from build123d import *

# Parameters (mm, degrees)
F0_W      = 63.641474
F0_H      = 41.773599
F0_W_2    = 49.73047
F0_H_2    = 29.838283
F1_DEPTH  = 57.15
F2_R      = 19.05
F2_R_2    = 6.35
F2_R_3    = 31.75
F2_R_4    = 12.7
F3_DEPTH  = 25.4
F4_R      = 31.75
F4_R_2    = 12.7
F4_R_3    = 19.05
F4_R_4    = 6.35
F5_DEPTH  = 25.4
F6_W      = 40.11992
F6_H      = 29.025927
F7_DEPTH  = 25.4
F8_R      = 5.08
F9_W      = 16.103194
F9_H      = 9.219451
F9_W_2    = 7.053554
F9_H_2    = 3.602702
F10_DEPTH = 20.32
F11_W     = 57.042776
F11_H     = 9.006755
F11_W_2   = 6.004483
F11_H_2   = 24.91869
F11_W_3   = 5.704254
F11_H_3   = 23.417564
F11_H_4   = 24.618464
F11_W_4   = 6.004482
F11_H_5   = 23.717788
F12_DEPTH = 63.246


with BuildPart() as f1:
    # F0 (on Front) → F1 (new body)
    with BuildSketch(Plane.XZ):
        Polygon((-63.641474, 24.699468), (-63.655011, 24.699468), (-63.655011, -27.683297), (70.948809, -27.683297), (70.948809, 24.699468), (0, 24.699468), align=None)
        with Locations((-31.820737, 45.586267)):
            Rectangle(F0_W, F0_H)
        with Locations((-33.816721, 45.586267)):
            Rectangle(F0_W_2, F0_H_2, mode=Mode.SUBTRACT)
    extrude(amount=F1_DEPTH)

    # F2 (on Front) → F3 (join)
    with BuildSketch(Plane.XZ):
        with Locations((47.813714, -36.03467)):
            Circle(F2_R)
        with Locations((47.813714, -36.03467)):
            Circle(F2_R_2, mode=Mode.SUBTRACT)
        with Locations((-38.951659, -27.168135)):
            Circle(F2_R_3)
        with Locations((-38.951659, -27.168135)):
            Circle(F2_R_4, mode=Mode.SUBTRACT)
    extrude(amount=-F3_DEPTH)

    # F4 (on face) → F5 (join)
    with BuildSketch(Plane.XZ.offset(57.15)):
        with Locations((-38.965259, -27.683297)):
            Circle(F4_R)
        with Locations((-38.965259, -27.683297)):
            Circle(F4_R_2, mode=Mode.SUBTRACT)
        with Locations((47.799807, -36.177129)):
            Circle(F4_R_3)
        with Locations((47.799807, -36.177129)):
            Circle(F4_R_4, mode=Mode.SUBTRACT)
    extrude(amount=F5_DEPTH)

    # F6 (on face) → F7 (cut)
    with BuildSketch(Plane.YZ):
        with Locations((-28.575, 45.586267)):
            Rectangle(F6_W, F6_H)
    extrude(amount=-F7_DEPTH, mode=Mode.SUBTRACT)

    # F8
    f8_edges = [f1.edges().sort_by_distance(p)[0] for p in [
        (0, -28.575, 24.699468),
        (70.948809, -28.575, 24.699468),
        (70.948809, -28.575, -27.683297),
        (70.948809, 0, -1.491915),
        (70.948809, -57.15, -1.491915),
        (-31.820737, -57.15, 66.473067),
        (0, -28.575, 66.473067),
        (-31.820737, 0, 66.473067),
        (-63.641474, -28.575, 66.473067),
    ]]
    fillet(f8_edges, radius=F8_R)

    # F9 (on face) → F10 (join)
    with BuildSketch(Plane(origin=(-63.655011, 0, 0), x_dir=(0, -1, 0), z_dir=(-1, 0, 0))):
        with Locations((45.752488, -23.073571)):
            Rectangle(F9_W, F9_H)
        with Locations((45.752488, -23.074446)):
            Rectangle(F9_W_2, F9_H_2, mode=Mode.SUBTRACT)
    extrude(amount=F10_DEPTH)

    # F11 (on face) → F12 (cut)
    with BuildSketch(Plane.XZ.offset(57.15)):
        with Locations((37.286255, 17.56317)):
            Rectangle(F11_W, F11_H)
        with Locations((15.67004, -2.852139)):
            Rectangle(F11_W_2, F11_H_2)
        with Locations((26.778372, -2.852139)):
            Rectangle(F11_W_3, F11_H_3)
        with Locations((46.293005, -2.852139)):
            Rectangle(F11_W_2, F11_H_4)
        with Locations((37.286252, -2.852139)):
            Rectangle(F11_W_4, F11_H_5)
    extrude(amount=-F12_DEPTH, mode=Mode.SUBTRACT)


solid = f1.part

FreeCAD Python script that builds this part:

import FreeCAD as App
import Part
import Sketcher
Q = App.Units.Quantity


def edges_at(feature, points):
    """Names of the edges that pass closest to the given points."""
    edges = feature.Shape.Edges
    near = lambda p: min(range(len(edges)), key=lambda i: edges[i].distToShape(Part.Vertex(*p))[0])
    return sorted({f"Edge{near(p) + 1}" for p in points})


def add_polygon(sketch, points):
    """Adds a closed chain of lines whose ends are joined by coincident constraints."""
    first, n = sketch.GeometryCount, len(points)
    for a, b in zip(points, points[1:] + points[:1]):
        sketch.addGeometry(Part.LineSegment(App.Vector(*a, 0), App.Vector(*b, 0)), False)
    for i in range(n):
        sketch.addConstraint(Sketcher.Constraint("Coincident", first + i, 2, first + (i + 1) % n, 1))

doc = App.newDocument("Part")
body = doc.addObject("PartDesign::Body", "Body")

# Sketch on XZ plane
sketch1 = body.newObject("Sketcher::SketchObject", "Sketch")
sketch1.AttachmentSupport = (doc.getObject("XZ_Plane"), [""])
sketch1.MapMode = "FlatFace"
add_polygon(sketch1, [(-63.641, 24.699), (-63.655, 24.699), (-63.655, -27.683), (70.949, -27.683), (70.949, 24.699), (0, 24.699), (0, 66.473), (-63.641, 66.473)])  # lines 0-7
add_polygon(sketch1, [(-8.951, 30.667), (-58.682, 30.667), (-58.682, 60.505), (-8.951, 60.505)])  # lines 8-11
sketch1.addConstraint(Sketcher.Constraint("Horizontal", 0))
sketch1.addConstraint(Sketcher.Constraint("Vertical", 1))
sketch1.addConstraint(Sketcher.Constraint("Horizontal", 2))
sketch1.addConstraint(Sketcher.Constraint("Vertical", 3))
sketch1.addConstraint(Sketcher.Constraint("Horizontal", 4))
sketch1.addConstraint(Sketcher.Constraint("Vertical", 5))
sketch1.addConstraint(Sketcher.Constraint("Horizontal", 6))
sketch1.addConstraint(Sketcher.Constraint("Vertical", 7))
sketch1.addConstraint(Sketcher.Constraint("Horizontal", 8))
sketch1.addConstraint(Sketcher.Constraint("Vertical", 9))
sketch1.addConstraint(Sketcher.Constraint("Horizontal", 10))
sketch1.addConstraint(Sketcher.Constraint("Vertical", 11))
sketch1.addConstraint(Sketcher.Constraint("PointOnObject", 4, 2, -2))
sketch1.addConstraint(Sketcher.Constraint("Horizontal", 0, 2, 3, 2))
sketch1.addConstraint(Sketcher.Constraint("DistanceY", 5, 1, 5, 2, 41.773599))
sketch1.addConstraint(Sketcher.Constraint("DistanceX", 2, 1, 2, 2, 134.60382))
sketch1.addConstraint(Sketcher.Constraint("DistanceX", 4, 2, 4, 1, 70.948809))
sketch1.addConstraint(Sketcher.Constraint("DistanceX", 8, 2, 8, 1, 49.73047))
sketch1.addConstraint(Sketcher.Constraint("DistanceX", 0, 2, 0, 1, 0.013537))
sketch1.addConstraint(Sketcher.Constraint("DistanceY", 1, 2, 1, 1, 52.382765))
sketch1.addConstraint(Sketcher.Constraint("DistanceY", 9, 1, 9, 2, 29.838283))
sketch1.addConstraint(Sketcher.Constraint("DistanceY", -1, 1, 9, 2, 60.505409))
sketch1.addConstraint(Sketcher.Constraint("DistanceX", 7, 2, 8, 2, 4.959518))
sketch1.addConstraint(Sketcher.Constraint("DistanceY", 8, 2, 6, 2, 35.805941))
pad1 = body.newObject("PartDesign::Pad", "Pad")
pad1.Profile = sketch1
pad1.Length = Q("2.25 in")

# Sketch on XZ plane
sketch2 = body.newObject("Sketcher::SketchObject", "Sketch001")
sketch2.AttachmentSupport = (doc.getObject("XZ_Plane"), [""])
sketch2.MapMode = "FlatFace"
sketch2.addGeometry(Part.Circle(App.Vector(48, -36, 0), App.Vector(0, 0, 1), 19), False)
sketch2.addGeometry(Part.Circle(App.Vector(48, -36, 0), App.Vector(0, 0, 1), 6), False)
sketch2.addGeometry(Part.Circle(App.Vector(-39, -27, 0), App.Vector(0, 0, 1), 32), False)
sketch2.addGeometry(Part.Circle(App.Vector(-39, -27, 0), App.Vector(0, 0, 1), 13), False)
sketch2.addConstraint(Sketcher.Constraint("Coincident", 1, 3, 0, 3))
sketch2.addConstraint(Sketcher.Constraint("Coincident", 3, 3, 2, 3))
sketch2.addConstraint(Sketcher.Constraint("Diameter", 3, Q("1 in")))
sketch2.addConstraint(Sketcher.Constraint("Diameter", 0, Q("1.5 in")))
sketch2.addConstraint(Sketcher.Constraint("Diameter", 1, Q("0.5 in")))
sketch2.addConstraint(Sketcher.Constraint("Diameter", 2, Q("2.5 in")))
sketch2.addConstraint(Sketcher.Constraint("DistanceY", 0, 3, -1, 1, 36.03467))
sketch2.addConstraint(Sketcher.Constraint("DistanceX", 2, 3, -1, 1, 38.951659))
sketch2.addConstraint(Sketcher.Constraint("DistanceX", -1, 1, 0, 3, 47.813714))
sketch2.addConstraint(Sketcher.Constraint("DistanceY", 2, 3, -1, 1, 27.168135))
pad2 = body.newObject("PartDesign::Pad", "Pad001")
pad2.Profile = sketch2
pad2.Length = Q("1 in")
pad2.Reversed = True

# Sketch on XZ plane
sketch3 = body.newObject("Sketcher::SketchObject", "Sketch002")
sketch3.AttachmentSupport = (doc.getObject("XZ_Plane"), [""])
sketch3.MapMode = "FlatFace"
sketch3.AttachmentOffset = App.Placement(App.Vector(0, 0, 2.25 * 25.4), App.Rotation())
sketch3.addGeometry(Part.Circle(App.Vector(-39, -28, 0), App.Vector(0, 0, 1), 32), False)
sketch3.addGeometry(Part.Circle(App.Vector(-39, -28, 0), App.Vector(0, 0, 1), 13), False)
sketch3.addGeometry(Part.Circle(App.Vector(48, -36, 0), App.Vector(0, 0, 1), 19), False)
sketch3.addGeometry(Part.Circle(App.Vector(48, -36, 0), App.Vector(0, 0, 1), 6), False)
sketch3.addConstraint(Sketcher.Constraint("Coincident", 1, 3, 0, 3))
sketch3.addConstraint(Sketcher.Constraint("Coincident", 3, 3, 2, 3))
sketch3.addConstraint(Sketcher.Constraint("Diameter", 1, Q("1 in")))
sketch3.addConstraint(Sketcher.Constraint("Diameter", 0, Q("2.5 in")))
sketch3.addConstraint(Sketcher.Constraint("Diameter", 2, Q("1.5 in")))
sketch3.addConstraint(Sketcher.Constraint("Diameter", 3, Q("0.5 in")))
sketch3.addConstraint(Sketcher.Constraint("DistanceX", 0, 3, -1, 1, 38.965259))
sketch3.addConstraint(Sketcher.Constraint("DistanceY", 2, 3, -1, 1, 36.177129))
sketch3.addConstraint(Sketcher.Constraint("DistanceY", 0, 3, -1, 1, 27.683297))
sketch3.addConstraint(Sketcher.Constraint("DistanceX", -1, 1, 2, 3, 47.799807))
pad3 = body.newObject("PartDesign::Pad", "Pad002")
pad3.Profile = sketch3
pad3.Length = Q("1 in")

# Sketch on YZ plane
sketch4 = body.newObject("Sketcher::SketchObject", "Sketch003")
sketch4.AttachmentSupport = (doc.getObject("YZ_Plane"), [""])
sketch4.MapMode = "FlatFace"
add_polygon(sketch4, [(-49, 60), (-49, 31), (-9, 31), (-9, 60)])  # lines 0-3
sketch4.addConstraint(Sketcher.Constraint("Vertical", 0))
sketch4.addConstraint(Sketcher.Constraint("Horizontal", 1))
sketch4.addConstraint(Sketcher.Constraint("Vertical", 2))
sketch4.addConstraint(Sketcher.Constraint("Horizontal", 3))
sketch4.addConstraint(Sketcher.Constraint("DistanceX", 1, 1, 1, 2, 40.11992))
sketch4.addConstraint(Sketcher.Constraint("DistanceY", 0, 2, 0, 1, 29.025927))
sketch4.addConstraint(Sketcher.Constraint("DistanceX", 0, 2, -1, 1, 48.63496))
sketch4.addConstraint(Sketcher.Constraint("DistanceY", -1, 1, 2, 2, 60.09923))
pocket1 = body.newObject("PartDesign::Pocket", "Pocket")
pocket1.Profile = sketch4
pocket1.Length = Q("1 in")
doc.recompute()

fillet = body.newObject("PartDesign::Fillet", "Fillet")
fillet.Base = (pocket1, edges_at(pocket1, [
    (0, -28.575, 24.699),
    (70.949, -28.575, 24.699),
    (70.949, -28.575, -27.683),
    (70.949, 0, -1.492),
    (70.949, -57.15, -1.492),
    (-31.821, -57.15, 66.473),
    (0, -28.575, 66.473),
    (-31.821, 0, 66.473),
    (-63.641, -28.575, 66.473),
]))
fillet.Radius = Q("0.2 in")

# Sketch on YZ plane
sketch5 = body.newObject("Sketcher::SketchObject", "Sketch004")
sketch5.AttachmentSupport = (doc.getObject("YZ_Plane"), [""])
sketch5.MapMode = "FlatFace"
sketch5.AttachmentOffset = App.Placement(App.Vector(0, 0, -63.655011), App.Rotation())
add_polygon(sketch5, [(-37.7, -18.5), (-37.7, -27.7), (-53.8, -27.7), (-53.8, -18.5)])  # lines 0-3
add_polygon(sketch5, [(-49.3, -24.9), (-42.2, -24.9), (-42.2, -21.3), (-49.3, -21.3)])  # lines 4-7
sketch5.addConstraint(Sketcher.Constraint("Vertical", 0))
sketch5.addConstraint(Sketcher.Constraint("Horizontal", 1))
sketch5.addConstraint(Sketcher.Constraint("Vertical", 2))
sketch5.addConstraint(Sketcher.Constraint("Horizontal", 3))
sketch5.addConstraint(Sketcher.Constraint("Horizontal", 4))
sketch5.addConstraint(Sketcher.Constraint("Vertical", 5))
sketch5.addConstraint(Sketcher.Constraint("Horizontal", 6))
sketch5.addConstraint(Sketcher.Constraint("Vertical", 7))
sketch5.addConstraint(Sketcher.Constraint("DistanceY", 5, 1, 5, 2, 3.602702))
sketch5.addConstraint(Sketcher.Constraint("DistanceY", 0, 2, 0, 1, 9.219451))
sketch5.addConstraint(Sketcher.Constraint("DistanceY", 0, 2, 4, 2, 2.8075))
sketch5.addConstraint(Sketcher.Constraint("DistanceX", 1, 2, 1, 1, 16.103194))
sketch5.addConstraint(Sketcher.Constraint("DistanceX", 4, 1, 4, 2, 7.053554))
sketch5.addConstraint(Sketcher.Constraint("DistanceX", 0, 2, -1, 1, 37.700891))
sketch5.addConstraint(Sketcher.Constraint("DistanceX", 4, 2, -1, 1, 42.225711))
sketch5.addConstraint(Sketcher.Constraint("DistanceY", 0, 2, -1, 1, 27.683297))
pad4 = body.newObject("PartDesign::Pad", "Pad003")
pad4.Profile = sketch5
pad4.Length = Q("0.8 in")
pad4.Reversed = True

# Sketch on XZ plane
sketch6 = body.newObject("Sketcher::SketchObject", "Sketch005")
sketch6.AttachmentSupport = (doc.getObject("XZ_Plane"), [""])
sketch6.MapMode = "FlatFace"
sketch6.AttachmentOffset = App.Placement(App.Vector(0, 0, 2.25 * 25.4), App.Rotation())
add_polygon(sketch6, [(9, 22), (9, 13), (66, 13), (66, 22)])  # lines 0-3
add_polygon(sketch6, [(13, 10), (13, -15), (19, -15), (19, 10)])  # lines 4-7
add_polygon(sketch6, [(24, 9), (24, -15), (30, -15), (30, 9)])  # lines 8-11
add_polygon(sketch6, [(43, 9), (43, -15), (49, -15), (49, 9)])  # lines 12-15
add_polygon(sketch6, [(34, 9), (34, -15), (40, -15), (40, 9)])  # lines 16-19
sketch6.addConstraint(Sketcher.Constraint("Vertical", 0))
sketch6.addConstraint(Sketcher.Constraint("Horizontal", 1))
sketch6.addConstraint(Sketcher.Constraint("Vertical", 2))
sketch6.addConstraint(Sketcher.Constraint("Horizontal", 3))
sketch6.addConstraint(Sketcher.Constraint("Vertical", 4))
sketch6.addConstraint(Sketcher.Constraint("Horizontal", 5))
sketch6.addConstraint(Sketcher.Constraint("Vertical", 6))
sketch6.addConstraint(Sketcher.Constraint("Horizontal", 7))
sketch6.addConstraint(Sketcher.Constraint("Vertical", 8))
sketch6.addConstraint(Sketcher.Constraint("Horizontal", 9))
sketch6.addConstraint(Sketcher.Constraint("Vertical", 10))
sketch6.addConstraint(Sketcher.Constraint("Horizontal", 11))
sketch6.addConstraint(Sketcher.Constraint("Vertical", 12))
sketch6.addConstraint(Sketcher.Constraint("Horizontal", 13))
sketch6.addConstraint(Sketcher.Constraint("Vertical", 14))
sketch6.addConstraint(Sketcher.Constraint("Horizontal", 15))
sketch6.addConstraint(Sketcher.Constraint("Vertical", 16))
sketch6.addConstraint(Sketcher.Constraint("Horizontal", 17))
sketch6.addConstraint(Sketcher.Constraint("Vertical", 18))
sketch6.addConstraint(Sketcher.Constraint("Horizontal", 19))
sketch6.addConstraint(Sketcher.Constraint("Equal", 7, 13))
sketch6.addConstraint(Sketcher.Constraint("Equal", 15, 17))
sketch6.addConstraint(Sketcher.Constraint("DistanceY", 4, 2, 4, 1, 24.91869))
sketch6.addConstraint(Sketcher.Constraint("DistanceX", -1, 1, 4, 2, 12.667798))
sketch6.addConstraint(Sketcher.Constraint("DistanceX", -1, 1, 9, 2, 29.630499))
sketch6.addConstraint(Sketcher.Constraint("DistanceX", 8, 2, 13, 2, 25.369001))
sketch6.addConstraint(Sketcher.Constraint("DistanceY", 14, 2, 1, 2, 3.602699))
sketch6.addConstraint(Sketcher.Constraint("DistanceX", 1, 1, 1, 2, 57.042776))
sketch6.addConstraint(Sketcher.Constraint("DistanceX", 5, 1, 5, 2, 6.004483))
sketch6.addConstraint(Sketcher.Constraint("DistanceX", 9, 1, 9, 2, 5.704254))
sketch6.addConstraint(Sketcher.Constraint("DistanceY", 0, 2, 0, 1, 9.006755))
sketch6.addConstraint(Sketcher.Constraint("DistanceY", 8, 2, 8, 1, 23.417564))
sketch6.addConstraint(Sketcher.Constraint("DistanceY", 12, 2, 12, 1, 24.618464))
sketch6.addConstraint(Sketcher.Constraint("DistanceY", 16, 2, 16, 1, 23.717788))
sketch6.addConstraint(Sketcher.Constraint("DistanceY", 8, 2, -1, 1, 14.560921))
sketch6.addConstraint(Sketcher.Constraint("DistanceY", 12, 2, -1, 1, 15.161371))
sketch6.addConstraint(Sketcher.Constraint("DistanceX", -1, 1, 16, 2, 34.284011))
sketch6.addConstraint(Sketcher.Constraint("DistanceX", 0, 2, 4, 2, 3.902931))
sketch6.addConstraint(Sketcher.Constraint("DistanceY", 4, 2, 3, 2, 37.378031))
sketch6.addConstraint(Sketcher.Constraint("DistanceY", 12, 2, 16, 2, 0.450338))
pocket2 = body.newObject("PartDesign::Pocket", "Pocket001")
pocket2.Profile = sketch6
pocket2.Length = Q("2.49 in")

doc.recompute()
